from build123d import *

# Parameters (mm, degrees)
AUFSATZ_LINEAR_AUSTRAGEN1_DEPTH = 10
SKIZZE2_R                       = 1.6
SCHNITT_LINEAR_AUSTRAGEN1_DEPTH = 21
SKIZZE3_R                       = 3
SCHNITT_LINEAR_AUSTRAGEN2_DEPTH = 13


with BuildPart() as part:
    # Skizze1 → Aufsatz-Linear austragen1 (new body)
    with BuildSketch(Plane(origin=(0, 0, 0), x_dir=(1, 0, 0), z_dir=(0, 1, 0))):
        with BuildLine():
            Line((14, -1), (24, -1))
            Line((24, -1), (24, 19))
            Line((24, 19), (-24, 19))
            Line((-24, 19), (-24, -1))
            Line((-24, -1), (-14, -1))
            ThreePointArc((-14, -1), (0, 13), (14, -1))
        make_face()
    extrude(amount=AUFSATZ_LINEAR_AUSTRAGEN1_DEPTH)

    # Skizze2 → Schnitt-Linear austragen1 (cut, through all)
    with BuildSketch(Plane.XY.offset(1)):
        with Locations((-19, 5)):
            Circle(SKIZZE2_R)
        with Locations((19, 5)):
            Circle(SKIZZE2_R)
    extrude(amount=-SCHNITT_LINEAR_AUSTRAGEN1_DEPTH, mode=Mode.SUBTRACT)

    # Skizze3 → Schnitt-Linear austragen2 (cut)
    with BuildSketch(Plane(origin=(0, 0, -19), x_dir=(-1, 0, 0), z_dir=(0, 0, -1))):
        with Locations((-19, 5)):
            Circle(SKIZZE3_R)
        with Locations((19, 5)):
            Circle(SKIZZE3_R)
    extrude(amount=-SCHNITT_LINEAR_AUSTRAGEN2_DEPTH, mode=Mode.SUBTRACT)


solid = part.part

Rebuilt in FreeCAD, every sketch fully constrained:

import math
import FreeCAD as App
import Part
import Sketcher
from FreeCAD import Vector
Q = App.Units.Quantity

doc = App.newDocument("Part")
body = doc.addObject("PartDesign::Body", "Body")

# Sketch on XZ plane
sketch1 = body.newObject("Sketcher::SketchObject", "Sketch")
sketch1.AttachmentSupport = (doc.getObject("XZ_Plane"), [""])
sketch1.MapMode = "FlatFace"
sketch1.addGeometry([
    Part.LineSegment(Vector(14, 1, 0), Vector(24, 1, 0)),  # 0
    Part.LineSegment(Vector(24, 1, 0), Vector(24, -19, 0)),  # 1
    Part.LineSegment(Vector(24, -19, 0), Vector(-24, -19, 0)),  # 2
    Part.LineSegment(Vector(-24, -19, 0), Vector(-24, 1, 0)),  # 3
    Part.LineSegment(Vector(-24, 1, 0), Vector(-14, 1, 0)),  # 4
    Part.ArcOfCircle(Part.Circle(Vector(0, 1, 0), Vector(0, 0, 1), 14), math.radians(180), math.radians(360)),  # 5
], False)
sketch1.addConstraint([
    Sketcher.Constraint("Coincident", 0, 2, 1, 1),
    Sketcher.Constraint("Coincident", 1, 2, 2, 1),
    Sketcher.Constraint("Coincident", 2, 2, 3, 1),
    Sketcher.Constraint("Coincident", 3, 2, 4, 1),
    Sketcher.Constraint("Coincident", 4, 2, 5, 1),
    Sketcher.Constraint("Coincident", 5, 2, 0, 1),
    Sketcher.Constraint("Horizontal", 0),
    Sketcher.Constraint("Vertical", 1),
    Sketcher.Constraint("Horizontal", 2),
    Sketcher.Constraint("Vertical", 3),
    Sketcher.Constraint("Horizontal", 4),
    Sketcher.Constraint("Symmetric", 0, 2, 3, 2, -2),
    Sketcher.Constraint("PointOnObject", 5, 3, -2),
    Sketcher.Constraint("Horizontal", 5, 3, 0, 2),
    Sketcher.Constraint("Radius", 5, Q("14 mm")),
    Sketcher.Constraint("DistanceX", 0, 1, 0, 2, Q("10 mm")),
    Sketcher.Constraint("DistanceY", 1, 2, 1, 1, Q("20 mm")),
    Sketcher.Constraint("DistanceY", -1, 1, 5, 3, Q("1 mm")),
])
pad1 = body.newObject("PartDesign::Pad", "Pad")
pad1.Profile = sketch1
pad1.Length = 10
pad1.Reversed = True

# Sketch on XY plane
sketch2 = body.newObject("Sketcher::SketchObject", "Sketch001")
sketch2.AttachmentSupport = (doc.getObject("XY_Plane"), [""])
sketch2.MapMode = "FlatFace"
sketch2.AttachmentOffset = App.Placement(Vector(0, 0, 1), App.Rotation())
sketch2.addGeometry([
    Part.Circle(Vector(-19, 5, 0), Vector(0, 0, 1), 1.6),
    Part.Circle(Vector(19, 5, 0), Vector(0, 0, 1), 1.6),
], False)
sketch2.addConstraint([
    Sketcher.Constraint("Equal", 0, 1),
    Sketcher.Constraint("Symmetric", 0, 3, 1, 3, -2),
    Sketcher.Constraint("Diameter", 0, Q("3.2 mm")),
    Sketcher.Constraint("DistanceX", 0, 3, -1, 1, Q("19 mm")),
    Sketcher.Constraint("DistanceY", -1, 1, 0, 3, Q("5 mm")),
])
pocket1 = body.newObject("PartDesign::Pocket", "Pocket")
pocket1.Profile = sketch2
pocket1.Type = "ThroughAll"

# Sketch on XY plane
sketch3 = body.newObject("Sketcher::SketchObject", "Sketch002")
sketch3.AttachmentSupport = (doc.getObject("XY_Plane"), [""])
sketch3.MapMode = "FlatFace"
sketch3.AttachmentOffset = App.Placement(Vector(0, 0, -19), App.Rotation())
sketch3.addGeometry([
    Part.Circle(Vector(19, 5, 0), Vector(0, 0, 1), 3),
    Part.Circle(Vector(-19, 5, 0), Vector(0, 0, 1), 3),
], False)
sketch3.addConstraint([
    Sketcher.Constraint("Equal", 0, 1),
    Sketcher.Constraint("Symmetric", 0, 3, 1, 3, -2),
    Sketcher.Constraint("Diameter", 0, Q("6 mm")),
    Sketcher.Constraint("DistanceX", -1, 1, 0, 3, Q("19 mm")),
    Sketcher.Constraint("DistanceY", -1, 1, 0, 3, Q("5 mm")),
])
pocket2 = body.newObject("PartDesign::Pocket", "Pocket001")
pocket2.Profile = sketch3
pocket2.Length = 13
pocket2.Reversed = True

doc.recompute()
